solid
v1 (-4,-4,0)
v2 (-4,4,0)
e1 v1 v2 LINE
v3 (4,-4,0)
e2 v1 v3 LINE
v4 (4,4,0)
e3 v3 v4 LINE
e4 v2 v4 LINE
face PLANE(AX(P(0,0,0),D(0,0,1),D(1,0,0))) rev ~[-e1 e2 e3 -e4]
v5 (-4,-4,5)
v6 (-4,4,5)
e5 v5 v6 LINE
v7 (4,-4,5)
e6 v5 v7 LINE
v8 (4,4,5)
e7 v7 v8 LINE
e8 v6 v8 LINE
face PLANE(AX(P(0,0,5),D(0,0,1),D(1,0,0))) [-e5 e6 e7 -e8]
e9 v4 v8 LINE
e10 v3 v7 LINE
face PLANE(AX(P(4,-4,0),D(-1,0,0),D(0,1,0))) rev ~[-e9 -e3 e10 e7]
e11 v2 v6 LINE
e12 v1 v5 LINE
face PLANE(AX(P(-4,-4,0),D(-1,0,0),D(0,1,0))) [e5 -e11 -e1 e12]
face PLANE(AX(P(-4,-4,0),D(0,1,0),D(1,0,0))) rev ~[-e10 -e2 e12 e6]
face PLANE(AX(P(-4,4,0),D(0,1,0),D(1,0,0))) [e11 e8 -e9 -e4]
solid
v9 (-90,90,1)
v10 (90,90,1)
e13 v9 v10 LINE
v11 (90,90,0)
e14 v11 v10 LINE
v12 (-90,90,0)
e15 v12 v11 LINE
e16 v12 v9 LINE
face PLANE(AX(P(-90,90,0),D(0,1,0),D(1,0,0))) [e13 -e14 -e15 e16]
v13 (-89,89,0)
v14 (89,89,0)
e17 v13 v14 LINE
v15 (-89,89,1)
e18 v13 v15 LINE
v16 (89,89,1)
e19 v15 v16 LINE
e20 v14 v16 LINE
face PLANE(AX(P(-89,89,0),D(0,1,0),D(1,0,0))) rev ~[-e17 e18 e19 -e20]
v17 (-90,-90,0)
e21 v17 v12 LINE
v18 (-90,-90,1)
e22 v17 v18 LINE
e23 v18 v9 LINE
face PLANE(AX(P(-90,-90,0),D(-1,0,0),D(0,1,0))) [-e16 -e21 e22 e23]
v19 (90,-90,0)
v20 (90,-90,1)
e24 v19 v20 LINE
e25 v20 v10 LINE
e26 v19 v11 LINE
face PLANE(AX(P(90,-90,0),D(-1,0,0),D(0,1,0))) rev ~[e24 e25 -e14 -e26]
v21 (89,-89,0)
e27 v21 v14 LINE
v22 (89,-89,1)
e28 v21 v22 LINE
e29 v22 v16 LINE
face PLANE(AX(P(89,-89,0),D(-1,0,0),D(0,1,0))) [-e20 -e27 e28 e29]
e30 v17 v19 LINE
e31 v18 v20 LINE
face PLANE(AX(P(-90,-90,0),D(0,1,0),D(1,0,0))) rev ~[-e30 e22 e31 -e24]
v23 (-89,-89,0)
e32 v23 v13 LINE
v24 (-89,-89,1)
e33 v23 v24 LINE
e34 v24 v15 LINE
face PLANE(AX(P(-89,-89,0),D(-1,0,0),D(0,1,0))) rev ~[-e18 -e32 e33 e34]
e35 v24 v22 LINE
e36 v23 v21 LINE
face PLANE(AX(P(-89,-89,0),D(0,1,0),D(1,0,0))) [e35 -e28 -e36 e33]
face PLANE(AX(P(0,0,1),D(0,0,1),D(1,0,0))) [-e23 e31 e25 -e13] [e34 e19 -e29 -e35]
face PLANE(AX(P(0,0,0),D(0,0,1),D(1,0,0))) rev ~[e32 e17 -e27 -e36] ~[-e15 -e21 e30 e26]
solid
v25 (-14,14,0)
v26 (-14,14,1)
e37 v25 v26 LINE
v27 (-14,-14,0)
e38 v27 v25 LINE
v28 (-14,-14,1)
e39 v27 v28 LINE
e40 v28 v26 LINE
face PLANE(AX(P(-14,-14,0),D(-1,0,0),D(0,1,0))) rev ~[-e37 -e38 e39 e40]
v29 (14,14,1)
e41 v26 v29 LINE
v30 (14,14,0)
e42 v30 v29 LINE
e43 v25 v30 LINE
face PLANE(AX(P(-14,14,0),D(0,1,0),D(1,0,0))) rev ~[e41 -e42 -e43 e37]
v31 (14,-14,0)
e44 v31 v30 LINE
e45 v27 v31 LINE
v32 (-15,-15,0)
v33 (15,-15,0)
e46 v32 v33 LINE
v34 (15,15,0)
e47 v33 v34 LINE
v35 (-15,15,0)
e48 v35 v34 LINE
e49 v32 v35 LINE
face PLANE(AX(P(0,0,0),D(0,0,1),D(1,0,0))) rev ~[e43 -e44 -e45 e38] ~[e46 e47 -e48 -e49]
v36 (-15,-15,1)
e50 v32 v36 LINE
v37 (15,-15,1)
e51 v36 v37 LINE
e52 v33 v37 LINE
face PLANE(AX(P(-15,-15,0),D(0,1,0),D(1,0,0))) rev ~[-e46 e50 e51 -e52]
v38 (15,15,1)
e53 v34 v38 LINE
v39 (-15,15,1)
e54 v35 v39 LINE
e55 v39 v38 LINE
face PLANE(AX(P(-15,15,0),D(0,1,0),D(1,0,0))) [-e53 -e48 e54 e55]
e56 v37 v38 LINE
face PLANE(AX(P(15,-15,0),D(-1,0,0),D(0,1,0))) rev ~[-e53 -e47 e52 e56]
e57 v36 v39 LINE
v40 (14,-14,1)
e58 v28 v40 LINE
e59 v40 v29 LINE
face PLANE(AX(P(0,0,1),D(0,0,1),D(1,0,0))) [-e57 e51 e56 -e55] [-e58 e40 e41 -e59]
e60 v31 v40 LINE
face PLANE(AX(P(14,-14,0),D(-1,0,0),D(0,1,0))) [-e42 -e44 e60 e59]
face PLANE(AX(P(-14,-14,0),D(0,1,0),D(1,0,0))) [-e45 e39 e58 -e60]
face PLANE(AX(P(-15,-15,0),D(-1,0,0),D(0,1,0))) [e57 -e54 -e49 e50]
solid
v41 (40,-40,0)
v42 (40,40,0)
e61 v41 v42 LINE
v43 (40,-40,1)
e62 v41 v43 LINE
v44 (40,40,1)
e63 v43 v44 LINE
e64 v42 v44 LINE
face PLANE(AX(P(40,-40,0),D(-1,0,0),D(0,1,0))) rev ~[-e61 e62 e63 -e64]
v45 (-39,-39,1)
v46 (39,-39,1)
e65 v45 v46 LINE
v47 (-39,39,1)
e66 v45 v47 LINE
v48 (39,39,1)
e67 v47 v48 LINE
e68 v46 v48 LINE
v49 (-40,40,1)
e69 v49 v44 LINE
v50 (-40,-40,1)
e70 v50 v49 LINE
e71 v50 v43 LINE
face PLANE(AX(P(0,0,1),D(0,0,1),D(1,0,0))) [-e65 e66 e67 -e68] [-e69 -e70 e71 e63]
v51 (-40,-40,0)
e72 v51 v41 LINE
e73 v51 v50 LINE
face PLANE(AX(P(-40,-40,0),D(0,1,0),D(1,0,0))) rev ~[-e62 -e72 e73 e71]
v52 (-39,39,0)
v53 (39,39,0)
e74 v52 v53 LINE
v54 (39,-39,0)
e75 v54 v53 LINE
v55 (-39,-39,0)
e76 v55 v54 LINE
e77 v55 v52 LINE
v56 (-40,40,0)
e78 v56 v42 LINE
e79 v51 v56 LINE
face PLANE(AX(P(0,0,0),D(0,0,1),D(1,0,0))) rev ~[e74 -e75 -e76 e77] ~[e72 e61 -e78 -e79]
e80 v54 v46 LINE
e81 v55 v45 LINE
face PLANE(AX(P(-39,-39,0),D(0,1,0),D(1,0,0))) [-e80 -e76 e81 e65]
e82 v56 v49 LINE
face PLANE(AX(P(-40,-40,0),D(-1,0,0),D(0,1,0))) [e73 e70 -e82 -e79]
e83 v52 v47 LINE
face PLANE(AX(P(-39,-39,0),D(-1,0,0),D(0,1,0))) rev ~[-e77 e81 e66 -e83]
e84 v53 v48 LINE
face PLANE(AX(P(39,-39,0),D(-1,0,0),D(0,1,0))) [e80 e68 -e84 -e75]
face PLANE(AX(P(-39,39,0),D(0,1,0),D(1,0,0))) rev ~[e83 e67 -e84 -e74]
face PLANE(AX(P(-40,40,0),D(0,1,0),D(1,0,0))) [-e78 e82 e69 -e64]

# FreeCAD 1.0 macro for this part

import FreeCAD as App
import Part
import Sketcher

V = App.Vector


def add_polygon(sketch, points):
    """Adds a closed chain of lines whose ends are joined by coincident constraints."""
    first, n = sketch.GeometryCount, len(points)
    for a, b in zip(points, points[1:] + points[:1]):
        sketch.addGeometry(Part.LineSegment(App.Vector(*a, 0), App.Vector(*b, 0)), False)
    for i in range(n):
        sketch.addConstraint(Sketcher.Constraint("Coincident", first + i, 2, first + (i + 1) % n, 1))

doc = App.newDocument("Part")
body = doc.addObject("PartDesign::Body", "Body")

# Sketch on XY plane
sketch1 = body.newObject("Sketcher::SketchObject", "Sketch")
sketch1.AttachmentSupport = (doc.getObject("XY_Plane"), [""])
sketch1.MapMode = "FlatFace"
add_polygon(sketch1, [(-40, 40), (-40, -40), (40, -40), (40, 40)])  # lines 0-3
add_polygon(sketch1, [(39, -39), (-39, -39), (-39, 39), (39, 39)])  # lines 4-7
sketch1.addConstraint(Sketcher.Constraint("Vertical", 0))
sketch1.addConstraint(Sketcher.Constraint("Horizontal", 1))
sketch1.addConstraint(Sketcher.Constraint("Vertical", 2))
sketch1.addConstraint(Sketcher.Constraint("Horizontal", 3))
sketch1.addConstraint(Sketcher.Constraint("Horizontal", 4))
sketch1.addConstraint(Sketcher.Constraint("Vertical", 5))
sketch1.addConstraint(Sketcher.Constraint("Horizontal", 6))
sketch1.addConstraint(Sketcher.Constraint("Vertical", 7))
sketch1.addConstraint(Sketcher.Constraint("Symmetric", 0, 2, 2, 2, -1, 1))
sketch1.addConstraint(Sketcher.Constraint("Symmetric", 4, 2, 6, 2, -1, 1))
sketch1.addConstraint(Sketcher.Constraint("Equal", 3, 0))
sketch1.addConstraint(Sketcher.Constraint("Equal", 6, 5))
sketch1.addConstraint(Sketcher.Constraint("DistanceX", 1, 1, 1, 2, 80.0))
sketch1.addConstraint(Sketcher.Constraint("DistanceX", 4, 2, 4, 1, 78.0))
pad1 = body.newObject("PartDesign::Pad", "Pad")
pad1.Profile = sketch1
pad1.Length = 1
body2 = doc.addObject("PartDesign::Body", "Body001")

# Sketch on XY plane
sketch2 = body2.newObject("Sketcher::SketchObject", "Sketch001")
sketch2.AttachmentSupport = (doc.getObject("XY_Plane001"), [""])
sketch2.MapMode = "FlatFace"
add_polygon(sketch2, [(-15, 15), (-15, -15), (15, -15), (15, 15)])  # lines 0-3
add_polygon(sketch2, [(14, -14), (-14, -14), (-14, 14), (14, 14)])  # lines 4-7
sketch2.addConstraint(Sketcher.Constraint("Vertical", 0))
sketch2.addConstraint(Sketcher.Constraint("Horizontal", 1))
sketch2.addConstraint(Sketcher.Constraint("Vertical", 2))
sketch2.addConstraint(Sketcher.Constraint("Horizontal", 3))
sketch2.addConstraint(Sketcher.Constraint("Horizontal", 4))
sketch2.addConstraint(Sketcher.Constraint("Vertical", 5))
sketch2.addConstraint(Sketcher.Constraint("Horizontal", 6))
sketch2.addConstraint(Sketcher.Constraint("Vertical", 7))
sketch2.addConstraint(Sketcher.Constraint("Symmetric", 0, 2, 2, 2, -1, 1))
sketch2.addConstraint(Sketcher.Constraint("Symmetric", 4, 2, 6, 2, -1, 1))
sketch2.addConstraint(Sketcher.Constraint("Equal", 3, 0))
sketch2.addConstraint(Sketcher.Constraint("Equal", 6, 5))
sketch2.addConstraint(Sketcher.Constraint("DistanceX", 1, 1, 1, 2, 30.0))
sketch2.addConstraint(Sketcher.Constraint("DistanceX", 4, 2, 4, 1, 28.0))
pad2 = body2.newObject("PartDesign::Pad", "Pad001")
pad2.Profile = sketch2
pad2.Length = 1
body3 = doc.addObject("PartDesign::Body", "Body002")

# Sketch on XY plane
sketch3 = body3.newObject("Sketcher::SketchObject", "Sketch002")
sketch3.AttachmentSupport = (doc.getObject("XY_Plane002"), [""])
sketch3.MapMode = "FlatFace"
add_polygon(sketch3, [(-90, 90), (-90, -90), (90, -90), (90, 90)])  # lines 0-3
add_polygon(sketch3, [(89, -89), (-89, -89), (-89, 89), (89, 89)])  # lines 4-7
sketch3.addConstraint(Sketcher.Constraint("Vertical", 0))
sketch3.addConstraint(Sketcher.Constraint("Horizontal", 1))
sketch3.addConstraint(Sketcher.Constraint("Vertical", 2))
sketch3.addConstraint(Sketcher.Constraint("Horizontal", 3))
sketch3.addConstraint(Sketcher.Constraint("Horizontal", 4))
sketch3.addConstraint(Sketcher.Constraint("Vertical", 5))
sketch3.addConstraint(Sketcher.Constraint("Horizontal", 6))
sketch3.addConstraint(Sketcher.Constraint("Vertical", 7))
sketch3.addConstraint(Sketcher.Constraint("Symmetric", 0, 2, 2, 2, -1, 1))
sketch3.addConstraint(Sketcher.Constraint("Symmetric", 4, 2, 6, 2, -1, 1))
sketch3.addConstraint(Sketcher.Constraint("Equal", 3, 0))
sketch3.addConstraint(Sketcher.Constraint("Equal", 6, 5))
sketch3.addConstraint(Sketcher.Constraint("DistanceX", 1, 1, 1, 2, 180.0))
sketch3.addConstraint(Sketcher.Constraint("DistanceX", 4, 2, 4, 1, 178.0))
pad3 = body3.newObject("PartDesign::Pad", "Pad002")
pad3.Profile = sketch3
pad3.Length = 1
body4 = doc.addObject("PartDesign::Body", "Body003")

# Sketch on XY plane
sketch4 = body4.newObject("Sketcher::SketchObject", "Sketch003")
sketch4.AttachmentSupport = (doc.getObject("XY_Plane003"), [""])
sketch4.MapMode = "FlatFace"
add_polygon(sketch4, [(-4, 4), (-4, -4), (4, -4), (4, 4)])  # lines 0-3
sketch4.addConstraint(Sketcher.Constraint("Vertical", 0))
sketch4.addConstraint(Sketcher.Constraint("Horizontal", 1))
sketch4.addConstraint(Sketcher.Constraint("Vertical", 2))
sketch4.addConstraint(Sketcher.Constraint("Horizontal", 3))
sketch4.addConstraint(Sketcher.Constraint("Symmetric", 0, 2, 2, 2, -1, 1))
sketch4.addConstraint(Sketcher.Constraint("Equal", 3, 0))
sketch4.addConstraint(Sketcher.Constraint("DistanceX", 1, 1, 1, 2, 8.0))
pad4 = body4.newObject("PartDesign::Pad", "Pad003")
pad4.Profile = sketch4
pad4.Length = 5

doc.recompute()
